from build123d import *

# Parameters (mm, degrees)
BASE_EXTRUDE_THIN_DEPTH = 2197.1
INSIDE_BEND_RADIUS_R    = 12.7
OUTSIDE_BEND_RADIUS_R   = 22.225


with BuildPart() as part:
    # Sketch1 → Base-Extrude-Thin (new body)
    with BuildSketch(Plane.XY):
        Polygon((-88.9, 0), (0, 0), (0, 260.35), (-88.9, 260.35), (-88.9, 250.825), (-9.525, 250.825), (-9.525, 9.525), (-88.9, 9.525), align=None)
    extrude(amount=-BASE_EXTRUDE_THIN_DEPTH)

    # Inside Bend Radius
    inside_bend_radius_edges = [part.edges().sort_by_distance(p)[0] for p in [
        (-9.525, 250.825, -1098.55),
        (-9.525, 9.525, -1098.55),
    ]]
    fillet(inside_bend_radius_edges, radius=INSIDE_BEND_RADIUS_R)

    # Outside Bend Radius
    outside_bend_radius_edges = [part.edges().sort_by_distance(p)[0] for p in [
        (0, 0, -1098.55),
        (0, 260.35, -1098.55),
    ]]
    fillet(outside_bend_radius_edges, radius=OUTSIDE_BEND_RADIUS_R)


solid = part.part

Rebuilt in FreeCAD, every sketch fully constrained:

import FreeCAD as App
import Part
import Sketcher
from FreeCAD import Vector
Q = App.Units.Quantity


def edges_at(feature, points):
    """Names of the edges that pass closest to the given points."""
    edges = feature.Shape.Edges
    near = lambda p: min(range(len(edges)), key=lambda i: edges[i].distToShape(Part.Vertex(*p))[0])
    return sorted({f"Edge{near(p) + 1}" for p in points})

doc = App.newDocument("Part")
params = doc.addObject("Spreadsheet::Sheet", "Params")
for row, (alias, value) in enumerate([
    ("sketch1_width", "3.5 in"),
    ("sketch1_height", "9.5 in"),
    ("sketch1_height2", "10.25 in"),
    ("sketch1_width2", "3.125 in"),
    ("pad1_length", "86.5 in"),
    ("fillet_radius", "0.5 in"),
    ("fillet2_radius", "0.875 in"),
], start=1):
    params.set(f"A{row}", alias)
    params.set(f"B{row}", "=" + value)
    params.setAlias(f"B{row}", alias)

body = doc.addObject("PartDesign::Body", "Body")

sketch1 = body.newObject("Sketcher::SketchObject", "Sketch")
sketch1.AttachmentSupport = (doc.getObject("XY_Plane"), [""])
sketch1.MapMode = "FlatFace"
sketch1.addGeometry([
    Part.LineSegment(Vector(-89, 0, 0), Vector(0, 0, 0)),
    Part.LineSegment(Vector(0, 0, 0), Vector(0, 260, 0)),
    Part.LineSegment(Vector(0, 260, 0), Vector(-89, 260, 0)),
    Part.LineSegment(Vector(-89, 260, 0), Vector(-89, 251, 0)),
    Part.LineSegment(Vector(-89, 251, 0), Vector(-10, 251, 0)),
    Part.LineSegment(Vector(-10, 251, 0), Vector(-10, 10, 0)),
    Part.LineSegment(Vector(-10, 10, 0), Vector(-89, 10, 0)),
    Part.LineSegment(Vector(-89, 10, 0), Vector(-89, 0, 0)),
], False)
sketch1.addConstraint([
    Sketcher.Constraint("Coincident", 0, 2, 1, 1),
    Sketcher.Constraint("Coincident", 1, 2, 2, 1),
    Sketcher.Constraint("Coincident", 2, 2, 3, 1),
    Sketcher.Constraint("Coincident", 3, 2, 4, 1),
    Sketcher.Constraint("Coincident", 4, 2, 5, 1),
    Sketcher.Constraint("Coincident", 5, 2, 6, 1),
    Sketcher.Constraint("Coincident", 6, 2, 7, 1),
    Sketcher.Constraint("Coincident", 7, 2, 0, 1),
    Sketcher.Constraint("Horizontal", 0),
    Sketcher.Constraint("Vertical", 1),
    Sketcher.Constraint("Horizontal", 2),
    Sketcher.Constraint("Vertical", 3),
    Sketcher.Constraint("Horizontal", 4),
    Sketcher.Constraint("Vertical", 5),
    Sketcher.Constraint("Horizontal", 6),
    Sketcher.Constraint("Vertical", 7),
    Sketcher.Constraint("Coincident", 0, 2, -1, 1),
    Sketcher.Constraint("Vertical", 3, 2, 6, 2),
    Sketcher.Constraint("Equal", 3, 7),
    Sketcher.Constraint("DistanceX", 0, 1, 0, 2, Q("3.5 in")),
    Sketcher.Constraint("DistanceY", 5, 2, 5, 1, Q("9.5 in")),
    Sketcher.Constraint("DistanceY", 1, 1, 1, 2, Q("10.25 in")),
    Sketcher.Constraint("DistanceX", 4, 1, 4, 2, Q("3.125 in")),
])
sketch1.setExpression("Constraints[19]", "Params.sketch1_width")
sketch1.setExpression("Constraints[20]", "Params.sketch1_height")
sketch1.setExpression("Constraints[21]", "Params.sketch1_height2")
sketch1.setExpression("Constraints[22]", "Params.sketch1_width2")
pad1 = body.newObject("PartDesign::Pad", "Pad")
pad1.Profile = sketch1
pad1.setExpression("Length", "Params.pad1_length")
pad1.Reversed = True
doc.recompute()

fillet = body.newObject("PartDesign::Fillet", "Fillet")
fillet.Base = (pad1, edges_at(pad1, [(-9.525, 250.825, -1098.55), (-9.525, 9.525, -1098.55)]))
fillet.setExpression("Radius", "Params.fillet_radius")
doc.recompute()

fillet2 = body.newObject("PartDesign::Fillet", "Fillet001")
fillet2.Base = (fillet, edges_at(fillet, [(0, 0, -1098.55), (0, 260.35, -1098.55)]))
fillet2.setExpression("Radius", "Params.fillet2_radius")

doc.recompute()
